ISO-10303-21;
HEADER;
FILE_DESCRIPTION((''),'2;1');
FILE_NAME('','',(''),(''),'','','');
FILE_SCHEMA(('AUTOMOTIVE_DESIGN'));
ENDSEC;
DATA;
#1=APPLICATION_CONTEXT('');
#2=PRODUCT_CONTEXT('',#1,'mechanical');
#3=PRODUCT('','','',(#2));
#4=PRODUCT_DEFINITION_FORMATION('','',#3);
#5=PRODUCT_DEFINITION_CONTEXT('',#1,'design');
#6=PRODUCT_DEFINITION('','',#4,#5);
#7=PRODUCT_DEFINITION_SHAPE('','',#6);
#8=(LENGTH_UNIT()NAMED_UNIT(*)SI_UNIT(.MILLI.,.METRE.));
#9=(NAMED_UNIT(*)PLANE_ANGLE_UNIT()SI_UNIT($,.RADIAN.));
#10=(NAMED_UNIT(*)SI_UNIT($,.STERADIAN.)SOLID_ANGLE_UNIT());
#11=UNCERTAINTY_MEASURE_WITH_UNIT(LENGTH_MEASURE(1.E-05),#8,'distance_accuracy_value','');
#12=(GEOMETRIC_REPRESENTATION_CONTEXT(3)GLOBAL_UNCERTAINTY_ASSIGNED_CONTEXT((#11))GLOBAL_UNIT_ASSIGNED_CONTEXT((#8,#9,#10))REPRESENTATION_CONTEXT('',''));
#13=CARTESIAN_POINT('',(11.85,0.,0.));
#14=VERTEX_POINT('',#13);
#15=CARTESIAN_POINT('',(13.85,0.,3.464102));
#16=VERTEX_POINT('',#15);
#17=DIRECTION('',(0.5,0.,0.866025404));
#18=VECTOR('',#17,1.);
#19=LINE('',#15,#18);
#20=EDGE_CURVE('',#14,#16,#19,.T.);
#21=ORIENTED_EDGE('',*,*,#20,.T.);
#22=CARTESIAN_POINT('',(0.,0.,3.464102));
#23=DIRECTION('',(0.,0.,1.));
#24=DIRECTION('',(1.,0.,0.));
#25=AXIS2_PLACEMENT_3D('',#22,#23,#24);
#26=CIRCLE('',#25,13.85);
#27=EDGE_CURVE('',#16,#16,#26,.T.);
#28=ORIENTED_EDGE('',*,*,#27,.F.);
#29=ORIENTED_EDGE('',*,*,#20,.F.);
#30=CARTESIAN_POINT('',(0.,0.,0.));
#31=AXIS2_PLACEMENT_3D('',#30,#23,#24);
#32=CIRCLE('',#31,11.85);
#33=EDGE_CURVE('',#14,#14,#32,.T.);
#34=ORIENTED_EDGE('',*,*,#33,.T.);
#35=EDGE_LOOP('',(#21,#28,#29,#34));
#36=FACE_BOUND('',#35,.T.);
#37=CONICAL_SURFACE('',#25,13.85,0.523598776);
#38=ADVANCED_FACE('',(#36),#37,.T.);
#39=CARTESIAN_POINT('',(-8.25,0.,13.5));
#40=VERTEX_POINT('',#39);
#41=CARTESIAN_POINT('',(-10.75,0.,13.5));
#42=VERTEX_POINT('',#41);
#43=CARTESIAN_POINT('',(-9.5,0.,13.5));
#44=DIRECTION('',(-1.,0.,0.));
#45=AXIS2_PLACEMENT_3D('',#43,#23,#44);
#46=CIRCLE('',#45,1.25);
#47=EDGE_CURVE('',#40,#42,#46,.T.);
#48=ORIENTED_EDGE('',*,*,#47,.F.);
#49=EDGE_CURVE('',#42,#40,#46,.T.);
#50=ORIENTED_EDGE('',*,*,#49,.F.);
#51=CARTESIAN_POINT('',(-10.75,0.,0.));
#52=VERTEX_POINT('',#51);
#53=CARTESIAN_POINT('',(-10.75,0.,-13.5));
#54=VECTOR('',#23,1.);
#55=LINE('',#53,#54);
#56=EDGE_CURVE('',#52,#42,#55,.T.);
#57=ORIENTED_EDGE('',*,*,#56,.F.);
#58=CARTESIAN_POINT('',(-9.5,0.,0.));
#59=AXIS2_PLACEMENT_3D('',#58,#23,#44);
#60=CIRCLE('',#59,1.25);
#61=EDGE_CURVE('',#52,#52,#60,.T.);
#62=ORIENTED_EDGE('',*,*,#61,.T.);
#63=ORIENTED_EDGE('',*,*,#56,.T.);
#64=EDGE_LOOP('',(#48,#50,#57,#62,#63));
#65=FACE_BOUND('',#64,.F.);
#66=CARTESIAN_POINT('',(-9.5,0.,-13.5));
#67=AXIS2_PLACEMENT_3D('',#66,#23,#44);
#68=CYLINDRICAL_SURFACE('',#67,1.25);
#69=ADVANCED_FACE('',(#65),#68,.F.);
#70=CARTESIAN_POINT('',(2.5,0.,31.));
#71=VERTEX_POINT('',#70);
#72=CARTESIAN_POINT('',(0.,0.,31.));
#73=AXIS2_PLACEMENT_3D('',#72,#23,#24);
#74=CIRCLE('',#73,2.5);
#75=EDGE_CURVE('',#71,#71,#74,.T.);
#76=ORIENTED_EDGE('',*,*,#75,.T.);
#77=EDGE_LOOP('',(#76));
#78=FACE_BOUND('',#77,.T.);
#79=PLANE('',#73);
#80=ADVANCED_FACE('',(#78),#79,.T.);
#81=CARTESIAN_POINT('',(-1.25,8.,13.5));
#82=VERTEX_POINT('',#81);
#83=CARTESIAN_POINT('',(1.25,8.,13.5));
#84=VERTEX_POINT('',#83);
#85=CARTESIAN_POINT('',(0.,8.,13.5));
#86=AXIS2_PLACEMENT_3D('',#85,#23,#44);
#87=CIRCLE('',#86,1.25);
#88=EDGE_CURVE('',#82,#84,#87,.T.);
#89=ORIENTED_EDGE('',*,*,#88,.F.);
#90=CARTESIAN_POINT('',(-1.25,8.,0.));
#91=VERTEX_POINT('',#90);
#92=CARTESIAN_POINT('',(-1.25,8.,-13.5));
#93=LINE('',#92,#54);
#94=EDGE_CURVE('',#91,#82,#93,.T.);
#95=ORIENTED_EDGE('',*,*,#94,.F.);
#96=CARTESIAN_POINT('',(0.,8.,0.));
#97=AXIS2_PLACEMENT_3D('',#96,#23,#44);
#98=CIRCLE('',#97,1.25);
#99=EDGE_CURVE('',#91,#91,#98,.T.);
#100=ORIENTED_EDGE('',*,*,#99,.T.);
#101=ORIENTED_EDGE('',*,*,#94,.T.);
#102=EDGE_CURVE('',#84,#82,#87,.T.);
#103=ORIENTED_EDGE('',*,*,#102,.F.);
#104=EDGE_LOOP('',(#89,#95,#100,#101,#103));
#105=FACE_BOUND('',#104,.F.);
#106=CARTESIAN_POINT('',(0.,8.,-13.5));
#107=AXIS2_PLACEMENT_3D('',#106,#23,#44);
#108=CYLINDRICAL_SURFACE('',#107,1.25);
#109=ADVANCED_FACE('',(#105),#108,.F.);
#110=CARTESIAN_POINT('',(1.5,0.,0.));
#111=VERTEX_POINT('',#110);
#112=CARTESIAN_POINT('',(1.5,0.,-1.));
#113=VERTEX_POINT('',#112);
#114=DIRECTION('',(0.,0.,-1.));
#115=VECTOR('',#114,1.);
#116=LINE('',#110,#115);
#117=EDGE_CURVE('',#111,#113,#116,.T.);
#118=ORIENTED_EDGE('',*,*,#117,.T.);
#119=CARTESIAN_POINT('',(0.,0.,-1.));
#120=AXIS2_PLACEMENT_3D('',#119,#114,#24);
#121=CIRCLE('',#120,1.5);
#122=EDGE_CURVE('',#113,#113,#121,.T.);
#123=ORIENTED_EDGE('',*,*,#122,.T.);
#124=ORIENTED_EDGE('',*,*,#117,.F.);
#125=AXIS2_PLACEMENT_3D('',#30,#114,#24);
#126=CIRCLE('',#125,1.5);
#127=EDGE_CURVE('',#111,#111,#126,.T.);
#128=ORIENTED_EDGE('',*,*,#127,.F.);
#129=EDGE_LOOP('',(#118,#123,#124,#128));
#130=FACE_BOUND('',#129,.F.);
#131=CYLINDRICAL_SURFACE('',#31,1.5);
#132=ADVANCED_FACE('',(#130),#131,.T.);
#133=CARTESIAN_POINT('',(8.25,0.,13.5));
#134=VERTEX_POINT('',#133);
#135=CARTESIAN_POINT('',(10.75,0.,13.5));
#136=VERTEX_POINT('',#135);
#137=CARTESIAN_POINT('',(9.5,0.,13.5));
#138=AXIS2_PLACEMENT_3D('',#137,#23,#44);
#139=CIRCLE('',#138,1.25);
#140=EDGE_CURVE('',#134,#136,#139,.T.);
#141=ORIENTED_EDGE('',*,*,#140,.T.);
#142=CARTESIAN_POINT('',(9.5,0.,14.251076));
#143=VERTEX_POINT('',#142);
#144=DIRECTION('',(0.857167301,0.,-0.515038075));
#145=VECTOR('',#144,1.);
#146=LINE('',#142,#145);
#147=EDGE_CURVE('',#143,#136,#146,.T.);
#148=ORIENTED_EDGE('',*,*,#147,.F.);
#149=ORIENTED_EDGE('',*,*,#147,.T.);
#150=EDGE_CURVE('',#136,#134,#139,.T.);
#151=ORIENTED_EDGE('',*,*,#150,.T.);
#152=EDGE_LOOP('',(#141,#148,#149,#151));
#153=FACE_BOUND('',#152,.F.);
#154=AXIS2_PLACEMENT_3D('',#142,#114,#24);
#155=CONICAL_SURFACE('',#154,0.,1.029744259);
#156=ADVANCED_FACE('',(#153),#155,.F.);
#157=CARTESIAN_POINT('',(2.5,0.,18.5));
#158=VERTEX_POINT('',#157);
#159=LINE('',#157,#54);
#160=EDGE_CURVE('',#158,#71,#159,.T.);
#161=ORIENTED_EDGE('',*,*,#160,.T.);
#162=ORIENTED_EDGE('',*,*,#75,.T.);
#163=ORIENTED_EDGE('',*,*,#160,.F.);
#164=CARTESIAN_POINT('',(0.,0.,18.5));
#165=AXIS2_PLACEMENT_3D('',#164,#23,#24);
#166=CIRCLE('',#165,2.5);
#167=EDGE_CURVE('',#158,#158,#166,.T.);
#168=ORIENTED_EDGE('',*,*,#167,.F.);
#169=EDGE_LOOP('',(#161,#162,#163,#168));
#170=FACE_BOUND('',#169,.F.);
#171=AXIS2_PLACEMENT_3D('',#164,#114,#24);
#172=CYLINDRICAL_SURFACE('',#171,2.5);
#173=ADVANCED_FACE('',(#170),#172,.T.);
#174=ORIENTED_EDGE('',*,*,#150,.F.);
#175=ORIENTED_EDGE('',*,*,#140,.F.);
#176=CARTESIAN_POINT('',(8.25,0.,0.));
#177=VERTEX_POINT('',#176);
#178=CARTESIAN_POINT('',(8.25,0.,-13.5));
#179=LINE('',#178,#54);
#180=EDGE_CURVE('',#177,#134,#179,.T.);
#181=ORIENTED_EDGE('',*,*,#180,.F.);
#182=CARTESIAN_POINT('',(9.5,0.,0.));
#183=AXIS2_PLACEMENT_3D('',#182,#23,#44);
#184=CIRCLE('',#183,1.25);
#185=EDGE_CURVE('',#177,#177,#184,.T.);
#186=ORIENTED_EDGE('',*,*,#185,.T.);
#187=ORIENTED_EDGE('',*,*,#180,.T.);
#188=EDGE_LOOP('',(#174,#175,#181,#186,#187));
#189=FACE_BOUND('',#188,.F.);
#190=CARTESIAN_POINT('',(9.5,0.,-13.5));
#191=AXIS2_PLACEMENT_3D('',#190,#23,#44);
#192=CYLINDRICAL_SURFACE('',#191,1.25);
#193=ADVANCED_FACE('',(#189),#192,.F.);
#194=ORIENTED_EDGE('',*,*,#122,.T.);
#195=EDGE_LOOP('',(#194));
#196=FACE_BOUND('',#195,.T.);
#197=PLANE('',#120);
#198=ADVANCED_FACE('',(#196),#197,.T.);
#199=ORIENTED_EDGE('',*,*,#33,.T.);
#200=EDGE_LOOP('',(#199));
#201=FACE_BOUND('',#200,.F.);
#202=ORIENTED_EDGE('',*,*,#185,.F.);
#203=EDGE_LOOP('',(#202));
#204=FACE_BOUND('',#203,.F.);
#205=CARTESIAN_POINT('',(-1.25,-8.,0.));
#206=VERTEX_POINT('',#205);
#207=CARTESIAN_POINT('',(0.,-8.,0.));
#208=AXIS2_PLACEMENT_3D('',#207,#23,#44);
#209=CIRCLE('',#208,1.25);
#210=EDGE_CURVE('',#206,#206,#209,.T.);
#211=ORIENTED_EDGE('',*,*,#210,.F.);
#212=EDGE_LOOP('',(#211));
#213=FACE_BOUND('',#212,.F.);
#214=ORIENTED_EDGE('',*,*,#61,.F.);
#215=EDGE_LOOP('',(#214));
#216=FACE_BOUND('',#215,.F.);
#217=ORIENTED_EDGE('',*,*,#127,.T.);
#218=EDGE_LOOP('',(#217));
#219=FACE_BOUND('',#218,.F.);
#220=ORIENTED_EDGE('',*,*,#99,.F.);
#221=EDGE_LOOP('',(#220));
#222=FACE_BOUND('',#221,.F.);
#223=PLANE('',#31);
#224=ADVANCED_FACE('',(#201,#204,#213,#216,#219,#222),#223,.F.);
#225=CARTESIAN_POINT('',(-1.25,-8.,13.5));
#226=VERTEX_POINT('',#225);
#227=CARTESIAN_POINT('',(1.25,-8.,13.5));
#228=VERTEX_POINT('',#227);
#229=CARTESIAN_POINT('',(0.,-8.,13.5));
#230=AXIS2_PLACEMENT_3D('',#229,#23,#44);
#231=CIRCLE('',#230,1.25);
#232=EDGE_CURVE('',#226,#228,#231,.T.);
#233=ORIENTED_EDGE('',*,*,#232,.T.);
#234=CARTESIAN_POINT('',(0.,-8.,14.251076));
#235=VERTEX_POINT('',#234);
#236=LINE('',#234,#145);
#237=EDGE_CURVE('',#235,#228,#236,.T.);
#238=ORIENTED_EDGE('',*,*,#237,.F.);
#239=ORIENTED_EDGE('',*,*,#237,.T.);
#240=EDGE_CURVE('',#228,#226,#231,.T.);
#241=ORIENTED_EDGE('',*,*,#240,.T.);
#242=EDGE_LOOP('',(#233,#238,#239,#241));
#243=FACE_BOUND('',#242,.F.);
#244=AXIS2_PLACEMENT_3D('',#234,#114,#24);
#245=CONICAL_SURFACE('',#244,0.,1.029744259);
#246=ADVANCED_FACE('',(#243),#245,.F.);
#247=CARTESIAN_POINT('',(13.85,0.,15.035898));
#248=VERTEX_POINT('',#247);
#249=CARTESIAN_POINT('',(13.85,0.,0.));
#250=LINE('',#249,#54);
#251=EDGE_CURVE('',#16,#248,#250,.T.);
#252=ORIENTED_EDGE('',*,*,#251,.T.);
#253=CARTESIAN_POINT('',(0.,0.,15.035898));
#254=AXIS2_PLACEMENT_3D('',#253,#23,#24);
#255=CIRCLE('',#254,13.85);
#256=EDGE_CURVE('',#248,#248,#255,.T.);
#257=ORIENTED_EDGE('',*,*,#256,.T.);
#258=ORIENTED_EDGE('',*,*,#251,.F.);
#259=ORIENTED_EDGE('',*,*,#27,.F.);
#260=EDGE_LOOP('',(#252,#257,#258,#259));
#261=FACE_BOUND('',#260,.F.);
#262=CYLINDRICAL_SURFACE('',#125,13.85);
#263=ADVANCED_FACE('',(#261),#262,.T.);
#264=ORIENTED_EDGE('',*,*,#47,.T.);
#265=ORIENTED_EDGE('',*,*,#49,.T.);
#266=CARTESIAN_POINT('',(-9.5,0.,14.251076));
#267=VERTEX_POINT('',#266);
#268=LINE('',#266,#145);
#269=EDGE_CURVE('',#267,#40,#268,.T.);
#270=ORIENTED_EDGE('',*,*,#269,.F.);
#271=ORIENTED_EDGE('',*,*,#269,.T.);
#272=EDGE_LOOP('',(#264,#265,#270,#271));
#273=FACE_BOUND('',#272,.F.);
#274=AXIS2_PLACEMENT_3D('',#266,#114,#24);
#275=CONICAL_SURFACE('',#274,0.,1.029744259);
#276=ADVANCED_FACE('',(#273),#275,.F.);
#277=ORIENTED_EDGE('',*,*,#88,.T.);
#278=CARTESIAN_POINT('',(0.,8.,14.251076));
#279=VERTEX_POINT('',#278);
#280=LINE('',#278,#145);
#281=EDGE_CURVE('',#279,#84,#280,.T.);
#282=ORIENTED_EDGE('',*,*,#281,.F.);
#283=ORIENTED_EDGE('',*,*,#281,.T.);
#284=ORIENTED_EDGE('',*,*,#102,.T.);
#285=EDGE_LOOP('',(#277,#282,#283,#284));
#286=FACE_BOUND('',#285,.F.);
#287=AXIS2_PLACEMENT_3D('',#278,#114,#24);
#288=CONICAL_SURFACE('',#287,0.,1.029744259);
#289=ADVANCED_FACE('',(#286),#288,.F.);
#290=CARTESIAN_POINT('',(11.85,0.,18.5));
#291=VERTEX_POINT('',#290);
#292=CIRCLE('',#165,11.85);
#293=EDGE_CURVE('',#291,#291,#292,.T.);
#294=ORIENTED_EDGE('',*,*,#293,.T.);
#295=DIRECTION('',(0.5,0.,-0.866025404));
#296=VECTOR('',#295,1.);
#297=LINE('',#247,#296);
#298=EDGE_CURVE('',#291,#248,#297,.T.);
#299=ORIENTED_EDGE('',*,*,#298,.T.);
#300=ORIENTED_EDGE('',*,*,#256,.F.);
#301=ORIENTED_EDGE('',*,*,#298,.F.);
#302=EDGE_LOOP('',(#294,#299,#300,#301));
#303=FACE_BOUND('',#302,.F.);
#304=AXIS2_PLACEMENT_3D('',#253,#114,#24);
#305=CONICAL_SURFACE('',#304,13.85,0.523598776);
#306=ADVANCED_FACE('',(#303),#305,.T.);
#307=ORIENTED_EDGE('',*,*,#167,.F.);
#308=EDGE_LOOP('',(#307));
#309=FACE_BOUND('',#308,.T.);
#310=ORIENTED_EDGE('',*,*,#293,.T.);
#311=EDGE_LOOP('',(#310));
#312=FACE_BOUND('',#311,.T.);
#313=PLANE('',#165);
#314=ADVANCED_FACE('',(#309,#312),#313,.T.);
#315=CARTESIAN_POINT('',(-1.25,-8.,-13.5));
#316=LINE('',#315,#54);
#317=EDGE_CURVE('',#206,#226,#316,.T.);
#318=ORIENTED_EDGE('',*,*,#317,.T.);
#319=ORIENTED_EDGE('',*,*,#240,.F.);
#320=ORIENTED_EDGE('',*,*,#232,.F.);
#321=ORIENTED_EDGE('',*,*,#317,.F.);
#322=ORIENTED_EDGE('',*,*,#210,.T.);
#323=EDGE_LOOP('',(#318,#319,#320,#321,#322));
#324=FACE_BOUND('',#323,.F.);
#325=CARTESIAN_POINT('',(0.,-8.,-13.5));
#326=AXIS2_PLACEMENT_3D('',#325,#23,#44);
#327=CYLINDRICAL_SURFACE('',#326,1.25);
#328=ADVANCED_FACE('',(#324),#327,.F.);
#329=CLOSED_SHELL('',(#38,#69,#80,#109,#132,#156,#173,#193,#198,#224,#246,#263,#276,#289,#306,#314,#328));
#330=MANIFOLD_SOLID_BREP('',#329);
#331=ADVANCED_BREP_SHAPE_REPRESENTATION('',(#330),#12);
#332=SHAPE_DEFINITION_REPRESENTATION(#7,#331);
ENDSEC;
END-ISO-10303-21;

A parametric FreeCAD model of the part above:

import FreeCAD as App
import Part
import Sketcher
from FreeCAD import Vector


def edges_at(feature, points):
    """Names of the edges that pass closest to the given points."""
    edges = feature.Shape.Edges
    near = lambda p: min(range(len(edges)), key=lambda i: edges[i].distToShape(Part.Vertex(*p))[0])
    return sorted({f"Edge{near(p) + 1}" for p in points})

doc = App.newDocument("Part")
body = doc.addObject("PartDesign::Body", "Body")

sketch1 = doc.addObject("Sketcher::SketchObject", "Sketch")
body.addObject(sketch1)
sketch1.AttachmentSupport = (doc.XY_Plane, [""])
sketch1.MapMode = "FlatFace"
sketch1.addGeometry(Part.Circle(Vector(0, 0, 0), Vector(0, 0, 1), 13.85), False)
sketch1.addConstraint(Sketcher.Constraint("Coincident", 0, 3, -1, 1))
sketch1.addConstraint(Sketcher.Constraint("Diameter", 0, 27.7))
pad1 = doc.addObject("PartDesign::Pad", "Pad")
body.addObject(pad1)
pad1.Profile = sketch1
pad1.Length = 18.5

sketch2 = doc.addObject("Sketcher::SketchObject", "Sketch001")
body.addObject(sketch2)
sketch2.AttachmentSupport = (doc.XY_Plane, [""])
sketch2.MapMode = "FlatFace"
sketch2.addGeometry(Part.Circle(Vector(0, 0, 0), Vector(0, 0, 1), 1.5), False)
sketch2.addConstraint(Sketcher.Constraint("Coincident", 0, 3, -1, 1))
sketch2.addConstraint(Sketcher.Constraint("Diameter", 0, 3.0))
pad2 = doc.addObject("PartDesign::Pad", "Pad001")
body.addObject(pad2)
pad2.Profile = sketch2
pad2.Length = 1
pad2.Reversed = True

sketch3 = doc.addObject("Sketcher::SketchObject", "Sketch002")
body.addObject(sketch3)
sketch3.AttachmentSupport = (doc.XY_Plane, [""])
sketch3.MapMode = "FlatFace"
sketch3.AttachmentOffset = App.Placement(Vector(0, 0, 18.5), App.Rotation())
sketch3.addGeometry(Part.Circle(Vector(0, 0, 0), Vector(0, 0, 1), 2.5), False)
sketch3.addConstraint(Sketcher.Constraint("Coincident", 0, 3, -1, 1))
sketch3.addConstraint(Sketcher.Constraint("Diameter", 0, 5.0))
pad3 = doc.addObject("PartDesign::Pad", "Pad002")
body.addObject(pad3)
pad3.Profile = sketch3
pad3.Length = 12.5
doc.recompute()

chamfer = doc.addObject("PartDesign::Chamfer", "Chamfer")
body.addObject(chamfer)
chamfer.Base = (pad3, edges_at(pad3, [(-13.85, 0, 18.5)]))
chamfer.ChamferType = "Two distances"
chamfer.Size = 2
chamfer.Size2 = 3.464102
chamfer.FlipDirection = True
doc.recompute()

chamfer2 = doc.addObject("PartDesign::Chamfer", "Chamfer001")
body.addObject(chamfer2)
chamfer2.Base = (chamfer, edges_at(chamfer, [(-13.85, 0, 0)]))
chamfer2.ChamferType = "Two distances"
chamfer2.Size = 2
chamfer2.Size2 = 3.464102
chamfer2.FlipDirection = True

sketch4 = doc.addObject("Sketcher::SketchObject", "Sketch003")
body.addObject(sketch4)
sketch4.AttachmentSupport = (doc.XY_Plane, [""])
sketch4.MapMode = "FlatFace"
sketch4.addGeometry(Part.Circle(Vector(-9.5, 0, 0), Vector(0, 0, 1), 1.25), False)
sketch4.addGeometry(Part.Circle(Vector(0, -8, 0), Vector(0, 0, 1), 1.25), False)
sketch4.addGeometry(Part.Circle(Vector(9.5, 0, 0), Vector(0, 0, 1), 1.25), False)
sketch4.addGeometry(Part.Circle(Vector(0, 8, 0), Vector(0, 0, 1), 1.25), False)
sketch4.addConstraint(Sketcher.Constraint("Equal", 0, 1))
sketch4.addConstraint(Sketcher.Constraint("Equal", 1, 2))
sketch4.addConstraint(Sketcher.Constraint("Equal", 2, 3))
sketch4.addConstraint(Sketcher.Constraint("Symmetric", 0, 3, 2, 3, -1, 1))
sketch4.addConstraint(Sketcher.Constraint("Symmetric", 1, 3, 3, 3, -1, 1))
sketch4.addConstraint(Sketcher.Constraint("PointOnObject", 0, 3, -1))
sketch4.addConstraint(Sketcher.Constraint("PointOnObject", 1, 3, -2))
sketch4.addConstraint(Sketcher.Constraint("Diameter", 0, 2.5))
sketch4.addConstraint(Sketcher.Constraint("DistanceY", 1, 3, -1, 1, 8.0))
sketch4.addConstraint(Sketcher.Constraint("DistanceX", 0, 3, 2, 3, 19.0))
doc.recompute()
hole = doc.addObject("PartDesign::Hole", "Hole")
body.addObject(hole)
hole.Profile = sketch4
hole.ThreadType = "None"
hole.Diameter = 2.5
hole.DepthType = "Dimension"
hole.Depth = 13.5
hole.DrillPoint = "Angled"
hole.DrillPointAngle = 118
hole.Reversed = True

doc.recompute()
